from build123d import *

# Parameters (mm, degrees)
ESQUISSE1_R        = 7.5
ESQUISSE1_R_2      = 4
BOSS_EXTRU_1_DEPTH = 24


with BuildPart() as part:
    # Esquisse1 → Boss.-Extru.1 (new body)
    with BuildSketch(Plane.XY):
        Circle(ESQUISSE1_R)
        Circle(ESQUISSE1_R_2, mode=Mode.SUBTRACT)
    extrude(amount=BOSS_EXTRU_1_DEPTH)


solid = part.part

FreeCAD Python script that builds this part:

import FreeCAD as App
import Part
import Sketcher

V = App.Vector

doc = App.newDocument("Part")
body = doc.addObject("PartDesign::Body", "Body")

# Sketch on XY plane
sketch1 = body.newObject("Sketcher::SketchObject", "Sketch")
sketch1.AttachmentSupport = (doc.getObject("XY_Plane"), [""])
sketch1.MapMode = "FlatFace"
sketch1.addGeometry(Part.Circle(V(0, 0, 0), V(0, 0, 1), 7.5), False)
sketch1.addGeometry(Part.Circle(V(0, 0, 0), V(0, 0, 1), 4), False)
sketch1.addConstraint(Sketcher.Constraint("Coincident", 0, 3, -1, 1))
sketch1.addConstraint(Sketcher.Constraint("Coincident", 1, 3, -1, 1))
sketch1.addConstraint(Sketcher.Constraint("Diameter", 0, 15.0))
sketch1.addConstraint(Sketcher.Constraint("Diameter", 1, 8.0))
pad1 = body.newObject("PartDesign::Pad", "Pad")
pad1.Profile = sketch1
pad1.Length = 24

doc.recompute()
